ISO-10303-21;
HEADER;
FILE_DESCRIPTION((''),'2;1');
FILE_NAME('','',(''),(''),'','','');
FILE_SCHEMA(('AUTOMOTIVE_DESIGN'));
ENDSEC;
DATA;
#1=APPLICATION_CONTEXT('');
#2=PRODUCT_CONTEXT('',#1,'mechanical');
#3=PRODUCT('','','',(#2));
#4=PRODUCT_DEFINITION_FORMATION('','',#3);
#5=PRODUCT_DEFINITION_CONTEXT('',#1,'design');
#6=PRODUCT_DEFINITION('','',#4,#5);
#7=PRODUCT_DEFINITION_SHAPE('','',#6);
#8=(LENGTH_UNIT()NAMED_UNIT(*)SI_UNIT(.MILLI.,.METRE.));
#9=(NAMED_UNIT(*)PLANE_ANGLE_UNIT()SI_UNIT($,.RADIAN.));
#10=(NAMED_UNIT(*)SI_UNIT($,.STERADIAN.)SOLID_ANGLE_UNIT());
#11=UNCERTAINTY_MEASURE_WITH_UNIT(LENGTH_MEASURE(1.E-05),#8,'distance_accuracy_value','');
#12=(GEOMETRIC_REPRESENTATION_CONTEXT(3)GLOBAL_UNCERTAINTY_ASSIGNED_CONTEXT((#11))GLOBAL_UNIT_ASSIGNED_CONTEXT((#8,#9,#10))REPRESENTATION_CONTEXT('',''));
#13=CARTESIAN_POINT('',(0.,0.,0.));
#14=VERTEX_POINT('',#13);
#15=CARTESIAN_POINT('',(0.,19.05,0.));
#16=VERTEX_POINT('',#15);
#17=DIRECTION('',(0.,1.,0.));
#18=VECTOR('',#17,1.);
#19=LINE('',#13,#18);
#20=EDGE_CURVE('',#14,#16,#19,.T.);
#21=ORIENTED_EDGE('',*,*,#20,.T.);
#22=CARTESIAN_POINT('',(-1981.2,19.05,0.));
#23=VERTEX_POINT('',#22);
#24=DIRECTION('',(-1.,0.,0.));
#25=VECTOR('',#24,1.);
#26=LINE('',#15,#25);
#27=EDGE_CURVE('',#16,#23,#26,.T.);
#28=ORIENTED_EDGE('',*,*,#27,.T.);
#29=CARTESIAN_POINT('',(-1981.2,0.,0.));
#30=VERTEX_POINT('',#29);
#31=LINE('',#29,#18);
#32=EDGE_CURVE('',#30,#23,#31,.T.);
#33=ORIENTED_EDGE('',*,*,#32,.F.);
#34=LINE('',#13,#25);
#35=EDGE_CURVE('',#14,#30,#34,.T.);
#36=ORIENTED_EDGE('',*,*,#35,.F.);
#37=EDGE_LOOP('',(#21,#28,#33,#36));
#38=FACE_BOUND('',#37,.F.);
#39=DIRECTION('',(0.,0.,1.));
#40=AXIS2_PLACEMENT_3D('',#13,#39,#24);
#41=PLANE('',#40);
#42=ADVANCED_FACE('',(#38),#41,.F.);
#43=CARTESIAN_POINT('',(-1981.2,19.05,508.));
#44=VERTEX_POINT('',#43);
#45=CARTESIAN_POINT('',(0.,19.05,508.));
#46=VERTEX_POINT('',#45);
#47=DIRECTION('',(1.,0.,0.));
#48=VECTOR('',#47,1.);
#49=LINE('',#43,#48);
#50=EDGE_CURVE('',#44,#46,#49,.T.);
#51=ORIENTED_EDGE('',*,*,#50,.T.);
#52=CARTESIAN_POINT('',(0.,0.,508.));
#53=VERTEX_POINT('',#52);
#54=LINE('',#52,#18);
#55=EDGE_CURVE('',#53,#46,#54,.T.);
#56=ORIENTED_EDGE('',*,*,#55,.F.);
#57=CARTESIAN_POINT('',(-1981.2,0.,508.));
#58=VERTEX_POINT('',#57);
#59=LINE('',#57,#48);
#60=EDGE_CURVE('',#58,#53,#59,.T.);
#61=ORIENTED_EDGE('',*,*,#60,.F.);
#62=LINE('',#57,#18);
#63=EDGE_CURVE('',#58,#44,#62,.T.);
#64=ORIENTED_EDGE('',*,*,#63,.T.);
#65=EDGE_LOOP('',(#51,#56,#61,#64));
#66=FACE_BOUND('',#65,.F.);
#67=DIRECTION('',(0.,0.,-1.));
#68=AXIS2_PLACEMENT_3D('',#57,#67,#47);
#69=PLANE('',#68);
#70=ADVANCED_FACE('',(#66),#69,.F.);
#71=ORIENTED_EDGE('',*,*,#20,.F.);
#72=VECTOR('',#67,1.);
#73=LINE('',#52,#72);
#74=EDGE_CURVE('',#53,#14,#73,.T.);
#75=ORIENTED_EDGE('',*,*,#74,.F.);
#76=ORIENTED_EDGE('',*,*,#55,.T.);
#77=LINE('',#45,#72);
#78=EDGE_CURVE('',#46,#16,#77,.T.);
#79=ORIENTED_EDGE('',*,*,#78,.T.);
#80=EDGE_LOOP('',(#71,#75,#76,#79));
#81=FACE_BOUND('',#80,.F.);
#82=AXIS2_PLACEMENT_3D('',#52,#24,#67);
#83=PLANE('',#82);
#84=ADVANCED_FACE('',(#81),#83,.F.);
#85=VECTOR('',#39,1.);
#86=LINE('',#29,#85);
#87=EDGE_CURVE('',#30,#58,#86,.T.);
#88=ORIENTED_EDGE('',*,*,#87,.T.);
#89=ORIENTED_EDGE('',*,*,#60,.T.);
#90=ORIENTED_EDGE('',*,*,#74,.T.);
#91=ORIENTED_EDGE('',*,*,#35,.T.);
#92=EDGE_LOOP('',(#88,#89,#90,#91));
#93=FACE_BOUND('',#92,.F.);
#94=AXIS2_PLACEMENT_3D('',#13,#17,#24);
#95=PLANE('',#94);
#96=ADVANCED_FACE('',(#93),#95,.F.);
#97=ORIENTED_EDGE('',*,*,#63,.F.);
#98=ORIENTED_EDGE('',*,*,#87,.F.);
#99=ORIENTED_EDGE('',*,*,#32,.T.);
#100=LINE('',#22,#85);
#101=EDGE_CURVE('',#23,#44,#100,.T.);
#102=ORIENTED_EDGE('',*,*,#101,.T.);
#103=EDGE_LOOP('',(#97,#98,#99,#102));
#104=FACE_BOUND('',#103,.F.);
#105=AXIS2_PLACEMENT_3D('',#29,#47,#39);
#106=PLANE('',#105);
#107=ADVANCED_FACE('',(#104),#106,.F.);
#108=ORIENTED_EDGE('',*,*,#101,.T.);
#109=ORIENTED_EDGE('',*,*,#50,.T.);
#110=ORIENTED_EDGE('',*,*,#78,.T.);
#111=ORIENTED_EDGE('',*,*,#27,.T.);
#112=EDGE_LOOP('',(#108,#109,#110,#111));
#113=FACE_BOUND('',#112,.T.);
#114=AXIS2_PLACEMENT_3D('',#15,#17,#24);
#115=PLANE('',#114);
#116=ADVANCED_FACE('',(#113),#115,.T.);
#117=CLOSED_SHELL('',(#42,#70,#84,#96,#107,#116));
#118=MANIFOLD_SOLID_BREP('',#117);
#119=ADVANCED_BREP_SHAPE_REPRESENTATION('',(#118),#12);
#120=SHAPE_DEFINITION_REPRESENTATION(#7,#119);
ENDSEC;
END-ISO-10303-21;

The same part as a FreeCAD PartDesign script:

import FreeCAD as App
import Part
import Sketcher
from FreeCAD import Vector
Q = App.Units.Quantity

doc = App.newDocument("Part")
params = doc.addObject("Spreadsheet::Sheet", "Params")
for row, (alias, value) in enumerate([
    ("sketch1_width", "78 in"),
    ("sketch1_height", "20 in"),
    ("pad1_length", "0.75 in"),
], start=1):
    params.set(f"A{row}", alias)
    params.set(f"B{row}", "=" + value)
    params.setAlias(f"B{row}", alias)

body = doc.addObject("PartDesign::Body", "Body")

# Sketch on XZ plane
sketch1 = body.newObject("Sketcher::SketchObject", "Sketch")
sketch1.AttachmentSupport = (doc.getObject("XZ_Plane"), [""])
sketch1.MapMode = "FlatFace"
sketch1.addGeometry([
    Part.LineSegment(Vector(0, 508, 0), Vector(0, 0, 0)),
    Part.LineSegment(Vector(0, 0, 0), Vector(-1981.2, 0, 0)),
    Part.LineSegment(Vector(-1981.2, 0, 0), Vector(-1981.2, 508, 0)),
    Part.LineSegment(Vector(-1981.2, 508, 0), Vector(0, 508, 0)),
], False)
sketch1.addConstraint([
    Sketcher.Constraint("Coincident", 0, 2, 1, 1),
    Sketcher.Constraint("Coincident", 1, 2, 2, 1),
    Sketcher.Constraint("Coincident", 2, 2, 3, 1),
    Sketcher.Constraint("Coincident", 3, 2, 0, 1),
    Sketcher.Constraint("Vertical", 0),
    Sketcher.Constraint("Horizontal", 1),
    Sketcher.Constraint("Vertical", 2),
    Sketcher.Constraint("Horizontal", 3),
    Sketcher.Constraint("Coincident", 0, 2, -1, 1),
    Sketcher.Constraint("DistanceX", 1, 2, 1, 1, Q("78 in")),
    Sketcher.Constraint("DistanceY", 0, 2, 0, 1, Q("20 in")),
])
sketch1.setExpression("Constraints[9]", "Params.sketch1_width")
sketch1.setExpression("Constraints[10]", "Params.sketch1_height")
pad1 = body.newObject("PartDesign::Pad", "Pad")
pad1.Profile = sketch1
pad1.setExpression("Length", "Params.pad1_length")
pad1.Reversed = True

doc.recompute()
